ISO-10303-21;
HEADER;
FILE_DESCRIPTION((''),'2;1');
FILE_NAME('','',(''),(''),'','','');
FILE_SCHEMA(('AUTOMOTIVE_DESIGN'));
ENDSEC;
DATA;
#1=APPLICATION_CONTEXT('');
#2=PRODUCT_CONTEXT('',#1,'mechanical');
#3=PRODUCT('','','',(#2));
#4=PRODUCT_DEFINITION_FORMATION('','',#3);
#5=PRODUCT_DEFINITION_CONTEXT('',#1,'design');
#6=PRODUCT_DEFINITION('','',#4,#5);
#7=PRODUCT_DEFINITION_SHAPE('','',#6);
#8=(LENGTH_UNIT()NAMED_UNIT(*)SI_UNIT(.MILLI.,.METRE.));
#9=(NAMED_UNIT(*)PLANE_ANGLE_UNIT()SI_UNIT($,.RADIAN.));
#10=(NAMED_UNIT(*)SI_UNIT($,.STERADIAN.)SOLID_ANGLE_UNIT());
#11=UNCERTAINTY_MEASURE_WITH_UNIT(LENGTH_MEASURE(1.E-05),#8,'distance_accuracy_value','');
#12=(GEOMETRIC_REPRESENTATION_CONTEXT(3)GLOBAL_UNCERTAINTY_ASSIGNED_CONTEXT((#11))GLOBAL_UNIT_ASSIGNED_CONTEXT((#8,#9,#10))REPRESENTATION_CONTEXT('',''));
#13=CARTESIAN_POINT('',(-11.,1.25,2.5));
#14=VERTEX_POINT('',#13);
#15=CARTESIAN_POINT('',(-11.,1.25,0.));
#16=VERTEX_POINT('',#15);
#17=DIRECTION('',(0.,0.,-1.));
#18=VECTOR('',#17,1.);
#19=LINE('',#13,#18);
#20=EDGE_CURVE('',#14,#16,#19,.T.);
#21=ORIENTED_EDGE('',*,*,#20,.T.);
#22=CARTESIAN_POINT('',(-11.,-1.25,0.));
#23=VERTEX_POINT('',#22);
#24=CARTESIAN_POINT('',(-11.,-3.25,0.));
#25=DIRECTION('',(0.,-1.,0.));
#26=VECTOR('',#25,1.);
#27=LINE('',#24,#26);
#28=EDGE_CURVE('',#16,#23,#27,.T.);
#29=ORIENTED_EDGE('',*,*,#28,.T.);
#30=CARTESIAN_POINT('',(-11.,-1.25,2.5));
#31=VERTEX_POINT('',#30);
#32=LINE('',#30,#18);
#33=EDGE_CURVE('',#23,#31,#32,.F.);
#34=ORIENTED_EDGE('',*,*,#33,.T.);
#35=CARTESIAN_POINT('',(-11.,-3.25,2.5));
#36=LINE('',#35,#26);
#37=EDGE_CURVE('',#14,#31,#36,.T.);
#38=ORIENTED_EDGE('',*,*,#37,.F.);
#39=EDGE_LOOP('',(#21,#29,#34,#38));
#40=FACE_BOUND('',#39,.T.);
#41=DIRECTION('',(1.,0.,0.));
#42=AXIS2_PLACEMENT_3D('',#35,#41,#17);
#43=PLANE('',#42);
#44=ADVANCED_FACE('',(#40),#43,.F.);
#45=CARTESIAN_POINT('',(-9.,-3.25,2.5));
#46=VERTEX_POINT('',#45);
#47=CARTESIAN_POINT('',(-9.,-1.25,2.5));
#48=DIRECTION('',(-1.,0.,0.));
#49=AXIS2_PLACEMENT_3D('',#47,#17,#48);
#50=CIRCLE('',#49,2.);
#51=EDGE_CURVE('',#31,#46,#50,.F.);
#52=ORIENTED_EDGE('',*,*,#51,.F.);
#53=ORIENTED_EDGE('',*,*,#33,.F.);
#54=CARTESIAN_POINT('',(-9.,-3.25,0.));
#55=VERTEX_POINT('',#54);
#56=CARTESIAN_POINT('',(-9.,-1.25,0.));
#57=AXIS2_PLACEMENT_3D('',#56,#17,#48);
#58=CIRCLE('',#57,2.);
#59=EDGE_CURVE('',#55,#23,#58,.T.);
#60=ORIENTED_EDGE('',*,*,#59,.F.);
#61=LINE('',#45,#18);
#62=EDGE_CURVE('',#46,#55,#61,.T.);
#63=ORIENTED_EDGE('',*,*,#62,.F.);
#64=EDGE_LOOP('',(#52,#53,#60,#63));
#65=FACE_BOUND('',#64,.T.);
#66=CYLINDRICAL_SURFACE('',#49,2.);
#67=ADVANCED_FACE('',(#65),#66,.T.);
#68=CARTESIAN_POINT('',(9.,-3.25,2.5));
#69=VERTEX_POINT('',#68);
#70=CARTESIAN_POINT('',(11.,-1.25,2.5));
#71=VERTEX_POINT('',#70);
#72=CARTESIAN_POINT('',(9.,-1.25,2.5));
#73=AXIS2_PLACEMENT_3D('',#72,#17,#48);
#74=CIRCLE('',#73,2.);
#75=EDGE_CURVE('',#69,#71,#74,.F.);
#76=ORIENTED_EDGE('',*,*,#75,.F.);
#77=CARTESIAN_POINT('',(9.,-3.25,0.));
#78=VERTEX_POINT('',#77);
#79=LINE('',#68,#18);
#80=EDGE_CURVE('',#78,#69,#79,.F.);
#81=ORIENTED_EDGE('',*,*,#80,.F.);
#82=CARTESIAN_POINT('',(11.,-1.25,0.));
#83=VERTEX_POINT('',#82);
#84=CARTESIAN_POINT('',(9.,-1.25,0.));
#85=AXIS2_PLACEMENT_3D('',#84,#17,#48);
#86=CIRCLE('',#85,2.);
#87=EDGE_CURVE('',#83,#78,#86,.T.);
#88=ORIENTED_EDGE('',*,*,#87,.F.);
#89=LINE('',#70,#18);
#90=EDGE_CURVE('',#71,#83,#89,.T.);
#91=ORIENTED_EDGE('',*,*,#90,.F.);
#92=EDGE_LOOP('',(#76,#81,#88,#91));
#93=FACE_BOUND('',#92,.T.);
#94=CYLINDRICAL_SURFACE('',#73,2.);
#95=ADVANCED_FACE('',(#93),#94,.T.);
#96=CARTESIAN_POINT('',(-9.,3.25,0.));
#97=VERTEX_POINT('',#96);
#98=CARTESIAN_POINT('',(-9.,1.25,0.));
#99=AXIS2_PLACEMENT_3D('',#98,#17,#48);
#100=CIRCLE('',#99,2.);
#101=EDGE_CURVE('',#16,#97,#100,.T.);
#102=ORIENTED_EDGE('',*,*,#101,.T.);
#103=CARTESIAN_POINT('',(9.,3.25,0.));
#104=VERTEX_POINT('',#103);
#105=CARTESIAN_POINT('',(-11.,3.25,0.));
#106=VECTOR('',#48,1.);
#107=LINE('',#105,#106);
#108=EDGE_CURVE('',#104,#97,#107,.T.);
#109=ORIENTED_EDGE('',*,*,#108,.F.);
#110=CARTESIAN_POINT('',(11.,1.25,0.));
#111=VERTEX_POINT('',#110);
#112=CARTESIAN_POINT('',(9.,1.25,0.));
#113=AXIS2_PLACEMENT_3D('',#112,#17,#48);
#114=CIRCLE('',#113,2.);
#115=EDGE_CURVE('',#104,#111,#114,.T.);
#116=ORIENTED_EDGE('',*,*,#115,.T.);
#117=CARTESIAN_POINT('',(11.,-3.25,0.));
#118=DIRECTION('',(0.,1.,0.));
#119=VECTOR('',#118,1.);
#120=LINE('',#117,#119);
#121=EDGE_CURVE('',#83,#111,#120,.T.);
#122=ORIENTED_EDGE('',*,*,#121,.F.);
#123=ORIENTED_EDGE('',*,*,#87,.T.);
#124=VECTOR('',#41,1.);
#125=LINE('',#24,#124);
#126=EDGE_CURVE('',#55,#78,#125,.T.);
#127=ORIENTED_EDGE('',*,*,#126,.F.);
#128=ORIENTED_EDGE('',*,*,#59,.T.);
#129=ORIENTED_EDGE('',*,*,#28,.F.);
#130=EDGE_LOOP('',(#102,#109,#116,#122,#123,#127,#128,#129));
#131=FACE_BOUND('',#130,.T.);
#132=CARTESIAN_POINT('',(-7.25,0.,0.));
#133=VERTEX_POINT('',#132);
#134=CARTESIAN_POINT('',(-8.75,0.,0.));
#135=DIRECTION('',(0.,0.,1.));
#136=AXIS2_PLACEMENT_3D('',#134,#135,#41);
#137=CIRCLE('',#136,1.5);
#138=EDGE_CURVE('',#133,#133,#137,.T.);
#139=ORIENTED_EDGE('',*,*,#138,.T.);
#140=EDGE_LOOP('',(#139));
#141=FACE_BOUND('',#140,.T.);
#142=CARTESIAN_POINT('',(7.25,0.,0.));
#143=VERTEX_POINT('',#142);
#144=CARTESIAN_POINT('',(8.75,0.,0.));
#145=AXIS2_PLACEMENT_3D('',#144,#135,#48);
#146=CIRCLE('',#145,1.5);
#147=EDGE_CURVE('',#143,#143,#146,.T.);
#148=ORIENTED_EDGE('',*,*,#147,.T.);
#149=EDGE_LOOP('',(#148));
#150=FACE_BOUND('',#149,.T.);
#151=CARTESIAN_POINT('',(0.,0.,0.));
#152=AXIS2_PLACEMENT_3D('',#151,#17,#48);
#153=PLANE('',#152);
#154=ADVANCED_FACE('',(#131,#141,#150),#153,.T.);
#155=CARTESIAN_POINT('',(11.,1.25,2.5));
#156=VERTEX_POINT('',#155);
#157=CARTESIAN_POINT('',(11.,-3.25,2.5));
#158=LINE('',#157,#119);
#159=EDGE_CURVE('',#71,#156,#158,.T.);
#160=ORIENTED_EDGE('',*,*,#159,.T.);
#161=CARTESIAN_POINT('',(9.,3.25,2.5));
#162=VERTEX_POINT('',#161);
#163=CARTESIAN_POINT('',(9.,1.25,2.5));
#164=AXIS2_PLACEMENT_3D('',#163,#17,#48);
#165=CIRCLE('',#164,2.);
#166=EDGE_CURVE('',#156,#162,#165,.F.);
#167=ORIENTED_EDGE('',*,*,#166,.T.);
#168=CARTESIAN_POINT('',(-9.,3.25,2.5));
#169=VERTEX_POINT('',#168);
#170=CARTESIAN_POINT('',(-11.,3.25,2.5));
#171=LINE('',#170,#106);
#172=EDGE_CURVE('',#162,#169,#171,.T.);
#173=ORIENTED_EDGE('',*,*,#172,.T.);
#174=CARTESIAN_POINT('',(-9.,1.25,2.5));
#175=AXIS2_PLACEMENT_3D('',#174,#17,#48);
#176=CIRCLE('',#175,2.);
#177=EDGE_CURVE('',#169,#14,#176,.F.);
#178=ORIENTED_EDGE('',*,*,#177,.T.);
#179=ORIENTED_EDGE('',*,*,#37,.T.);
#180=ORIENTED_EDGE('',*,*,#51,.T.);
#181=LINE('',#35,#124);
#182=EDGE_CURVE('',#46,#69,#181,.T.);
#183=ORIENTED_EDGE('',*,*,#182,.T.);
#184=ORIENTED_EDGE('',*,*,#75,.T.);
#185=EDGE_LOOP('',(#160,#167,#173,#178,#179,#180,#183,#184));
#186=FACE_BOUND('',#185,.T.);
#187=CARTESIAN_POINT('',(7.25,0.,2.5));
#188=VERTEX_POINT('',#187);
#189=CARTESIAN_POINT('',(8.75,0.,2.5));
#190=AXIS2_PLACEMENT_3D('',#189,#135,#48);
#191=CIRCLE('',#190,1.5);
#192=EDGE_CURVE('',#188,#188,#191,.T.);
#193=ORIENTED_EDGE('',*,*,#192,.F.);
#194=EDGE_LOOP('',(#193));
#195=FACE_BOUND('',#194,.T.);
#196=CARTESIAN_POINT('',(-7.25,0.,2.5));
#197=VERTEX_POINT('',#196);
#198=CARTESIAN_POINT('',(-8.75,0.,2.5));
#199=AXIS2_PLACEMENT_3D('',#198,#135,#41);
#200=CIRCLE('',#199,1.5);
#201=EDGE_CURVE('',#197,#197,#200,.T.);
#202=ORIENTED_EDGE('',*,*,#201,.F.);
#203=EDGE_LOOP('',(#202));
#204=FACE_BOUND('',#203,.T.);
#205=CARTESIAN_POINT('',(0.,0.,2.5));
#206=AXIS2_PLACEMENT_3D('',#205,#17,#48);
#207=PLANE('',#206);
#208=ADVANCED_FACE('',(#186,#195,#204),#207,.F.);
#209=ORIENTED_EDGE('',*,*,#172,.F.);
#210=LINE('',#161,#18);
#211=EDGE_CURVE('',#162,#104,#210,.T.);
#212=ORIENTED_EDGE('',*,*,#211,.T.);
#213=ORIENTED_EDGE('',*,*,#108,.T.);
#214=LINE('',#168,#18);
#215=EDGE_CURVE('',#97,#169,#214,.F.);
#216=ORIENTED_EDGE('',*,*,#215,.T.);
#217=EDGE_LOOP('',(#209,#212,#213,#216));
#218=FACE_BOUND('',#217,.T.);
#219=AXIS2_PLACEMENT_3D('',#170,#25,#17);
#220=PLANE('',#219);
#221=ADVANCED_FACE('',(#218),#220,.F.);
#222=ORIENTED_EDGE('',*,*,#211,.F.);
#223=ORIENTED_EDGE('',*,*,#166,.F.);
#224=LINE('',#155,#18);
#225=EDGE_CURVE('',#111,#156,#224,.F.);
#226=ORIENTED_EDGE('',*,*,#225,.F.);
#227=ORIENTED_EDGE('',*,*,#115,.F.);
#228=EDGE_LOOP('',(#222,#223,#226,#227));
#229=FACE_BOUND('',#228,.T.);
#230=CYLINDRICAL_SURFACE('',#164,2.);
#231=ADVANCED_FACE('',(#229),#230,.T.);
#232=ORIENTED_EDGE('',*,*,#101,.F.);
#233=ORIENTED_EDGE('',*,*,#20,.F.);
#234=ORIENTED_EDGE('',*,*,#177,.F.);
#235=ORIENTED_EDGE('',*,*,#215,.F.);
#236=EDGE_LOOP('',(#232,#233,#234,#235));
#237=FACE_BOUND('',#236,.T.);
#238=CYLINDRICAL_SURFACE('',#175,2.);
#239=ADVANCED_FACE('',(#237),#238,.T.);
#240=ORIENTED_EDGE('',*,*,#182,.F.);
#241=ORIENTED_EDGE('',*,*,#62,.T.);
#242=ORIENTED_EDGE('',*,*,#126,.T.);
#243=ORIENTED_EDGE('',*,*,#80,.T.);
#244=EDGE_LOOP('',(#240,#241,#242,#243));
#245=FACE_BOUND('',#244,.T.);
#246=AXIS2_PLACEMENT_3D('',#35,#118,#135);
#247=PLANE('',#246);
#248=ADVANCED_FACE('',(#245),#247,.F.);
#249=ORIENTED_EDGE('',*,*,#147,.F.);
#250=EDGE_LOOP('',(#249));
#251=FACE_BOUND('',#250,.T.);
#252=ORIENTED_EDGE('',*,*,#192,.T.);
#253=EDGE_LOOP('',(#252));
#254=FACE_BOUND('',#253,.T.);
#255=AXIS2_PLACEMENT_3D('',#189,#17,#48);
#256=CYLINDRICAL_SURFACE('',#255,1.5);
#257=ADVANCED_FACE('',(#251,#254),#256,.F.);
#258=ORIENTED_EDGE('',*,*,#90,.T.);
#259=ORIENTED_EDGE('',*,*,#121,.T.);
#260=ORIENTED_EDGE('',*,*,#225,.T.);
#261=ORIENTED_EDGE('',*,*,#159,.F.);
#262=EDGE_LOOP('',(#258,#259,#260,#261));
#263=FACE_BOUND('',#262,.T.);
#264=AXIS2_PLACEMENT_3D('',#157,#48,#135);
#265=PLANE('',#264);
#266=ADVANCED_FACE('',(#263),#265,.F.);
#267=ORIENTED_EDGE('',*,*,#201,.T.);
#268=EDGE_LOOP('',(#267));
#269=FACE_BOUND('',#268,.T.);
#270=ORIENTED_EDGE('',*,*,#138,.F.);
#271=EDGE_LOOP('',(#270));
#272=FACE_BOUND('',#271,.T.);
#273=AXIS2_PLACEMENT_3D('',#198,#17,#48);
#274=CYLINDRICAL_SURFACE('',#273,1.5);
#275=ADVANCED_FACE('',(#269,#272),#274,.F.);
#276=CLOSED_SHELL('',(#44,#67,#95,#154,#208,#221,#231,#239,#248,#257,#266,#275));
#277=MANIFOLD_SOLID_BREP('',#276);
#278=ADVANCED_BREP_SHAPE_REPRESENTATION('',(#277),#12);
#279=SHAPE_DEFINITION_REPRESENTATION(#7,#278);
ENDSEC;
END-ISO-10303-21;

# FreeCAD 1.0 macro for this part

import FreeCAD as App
import Part
import Sketcher


def edges_at(feature, points):
    """Names of the edges that pass closest to the given points."""
    edges = feature.Shape.Edges
    near = lambda p: min(range(len(edges)), key=lambda i: edges[i].distToShape(Part.Vertex(*p))[0])
    return sorted({f"Edge{near(p) + 1}" for p in points})


def add_polygon(sketch, points):
    """Adds a closed chain of lines whose ends are joined by coincident constraints."""
    first, n = sketch.GeometryCount, len(points)
    for a, b in zip(points, points[1:] + points[:1]):
        sketch.addGeometry(Part.LineSegment(App.Vector(*a, 0), App.Vector(*b, 0)), False)
    for i in range(n):
        sketch.addConstraint(Sketcher.Constraint("Coincident", first + i, 2, first + (i + 1) % n, 1))

doc = App.newDocument("Part")
body = doc.addObject("PartDesign::Body", "Body")

# Sketch on XY plane
sketch1 = doc.addObject("Sketcher::SketchObject", "Sketch")
body.addObject(sketch1)
sketch1.AttachmentSupport = (doc.XY_Plane, [""])
sketch1.MapMode = "FlatFace"
add_polygon(sketch1, [(-11, 3.25), (-11, -3.25), (11, -3.25), (11, 3.25)])  # lines 0-3
sketch1.addGeometry(Part.Circle(App.Vector(-8.75, 0, 0), App.Vector(0, 0, 1), 1.5), False)  # 4
sketch1.addGeometry(Part.Circle(App.Vector(8.75, 0, 0), App.Vector(0, 0, 1), 1.5), False)  # 5
sketch1.addConstraint(Sketcher.Constraint("Vertical", 0))
sketch1.addConstraint(Sketcher.Constraint("Horizontal", 1))
sketch1.addConstraint(Sketcher.Constraint("Vertical", 2))
sketch1.addConstraint(Sketcher.Constraint("Horizontal", 3))
sketch1.addConstraint(Sketcher.Constraint("Equal", 4, 5))
sketch1.addConstraint(Sketcher.Constraint("Symmetric", 4, 3, 5, 3, -1, 1))
sketch1.addConstraint(Sketcher.Constraint("Symmetric", 0, 2, 2, 2, -1, 1))
sketch1.addConstraint(Sketcher.Constraint("PointOnObject", 4, 3, -1))
sketch1.addConstraint(Sketcher.Constraint("Diameter", 4, 3.0))
sketch1.addConstraint(Sketcher.Constraint("DistanceX", 1, 1, 1, 2, 22.0))
sketch1.addConstraint(Sketcher.Constraint("DistanceY", 0, 2, 0, 1, 6.5))
sketch1.addConstraint(Sketcher.Constraint("DistanceX", 4, 3, 5, 3, 17.5))
pad1 = doc.addObject("PartDesign::Pad", "Pad")
body.addObject(pad1)
pad1.Profile = sketch1
pad1.Length = 2.5
doc.recompute()

fillet = doc.addObject("PartDesign::Fillet", "Fillet")
body.addObject(fillet)
fillet.Base = (pad1, edges_at(pad1, [
    (11, -3.25, 1.25),
    (-11, -3.25, 1.25),
    (-11, 3.25, 1.25),
    (11, 3.25, 1.25),
]))
fillet.Radius = 2

doc.recompute()
